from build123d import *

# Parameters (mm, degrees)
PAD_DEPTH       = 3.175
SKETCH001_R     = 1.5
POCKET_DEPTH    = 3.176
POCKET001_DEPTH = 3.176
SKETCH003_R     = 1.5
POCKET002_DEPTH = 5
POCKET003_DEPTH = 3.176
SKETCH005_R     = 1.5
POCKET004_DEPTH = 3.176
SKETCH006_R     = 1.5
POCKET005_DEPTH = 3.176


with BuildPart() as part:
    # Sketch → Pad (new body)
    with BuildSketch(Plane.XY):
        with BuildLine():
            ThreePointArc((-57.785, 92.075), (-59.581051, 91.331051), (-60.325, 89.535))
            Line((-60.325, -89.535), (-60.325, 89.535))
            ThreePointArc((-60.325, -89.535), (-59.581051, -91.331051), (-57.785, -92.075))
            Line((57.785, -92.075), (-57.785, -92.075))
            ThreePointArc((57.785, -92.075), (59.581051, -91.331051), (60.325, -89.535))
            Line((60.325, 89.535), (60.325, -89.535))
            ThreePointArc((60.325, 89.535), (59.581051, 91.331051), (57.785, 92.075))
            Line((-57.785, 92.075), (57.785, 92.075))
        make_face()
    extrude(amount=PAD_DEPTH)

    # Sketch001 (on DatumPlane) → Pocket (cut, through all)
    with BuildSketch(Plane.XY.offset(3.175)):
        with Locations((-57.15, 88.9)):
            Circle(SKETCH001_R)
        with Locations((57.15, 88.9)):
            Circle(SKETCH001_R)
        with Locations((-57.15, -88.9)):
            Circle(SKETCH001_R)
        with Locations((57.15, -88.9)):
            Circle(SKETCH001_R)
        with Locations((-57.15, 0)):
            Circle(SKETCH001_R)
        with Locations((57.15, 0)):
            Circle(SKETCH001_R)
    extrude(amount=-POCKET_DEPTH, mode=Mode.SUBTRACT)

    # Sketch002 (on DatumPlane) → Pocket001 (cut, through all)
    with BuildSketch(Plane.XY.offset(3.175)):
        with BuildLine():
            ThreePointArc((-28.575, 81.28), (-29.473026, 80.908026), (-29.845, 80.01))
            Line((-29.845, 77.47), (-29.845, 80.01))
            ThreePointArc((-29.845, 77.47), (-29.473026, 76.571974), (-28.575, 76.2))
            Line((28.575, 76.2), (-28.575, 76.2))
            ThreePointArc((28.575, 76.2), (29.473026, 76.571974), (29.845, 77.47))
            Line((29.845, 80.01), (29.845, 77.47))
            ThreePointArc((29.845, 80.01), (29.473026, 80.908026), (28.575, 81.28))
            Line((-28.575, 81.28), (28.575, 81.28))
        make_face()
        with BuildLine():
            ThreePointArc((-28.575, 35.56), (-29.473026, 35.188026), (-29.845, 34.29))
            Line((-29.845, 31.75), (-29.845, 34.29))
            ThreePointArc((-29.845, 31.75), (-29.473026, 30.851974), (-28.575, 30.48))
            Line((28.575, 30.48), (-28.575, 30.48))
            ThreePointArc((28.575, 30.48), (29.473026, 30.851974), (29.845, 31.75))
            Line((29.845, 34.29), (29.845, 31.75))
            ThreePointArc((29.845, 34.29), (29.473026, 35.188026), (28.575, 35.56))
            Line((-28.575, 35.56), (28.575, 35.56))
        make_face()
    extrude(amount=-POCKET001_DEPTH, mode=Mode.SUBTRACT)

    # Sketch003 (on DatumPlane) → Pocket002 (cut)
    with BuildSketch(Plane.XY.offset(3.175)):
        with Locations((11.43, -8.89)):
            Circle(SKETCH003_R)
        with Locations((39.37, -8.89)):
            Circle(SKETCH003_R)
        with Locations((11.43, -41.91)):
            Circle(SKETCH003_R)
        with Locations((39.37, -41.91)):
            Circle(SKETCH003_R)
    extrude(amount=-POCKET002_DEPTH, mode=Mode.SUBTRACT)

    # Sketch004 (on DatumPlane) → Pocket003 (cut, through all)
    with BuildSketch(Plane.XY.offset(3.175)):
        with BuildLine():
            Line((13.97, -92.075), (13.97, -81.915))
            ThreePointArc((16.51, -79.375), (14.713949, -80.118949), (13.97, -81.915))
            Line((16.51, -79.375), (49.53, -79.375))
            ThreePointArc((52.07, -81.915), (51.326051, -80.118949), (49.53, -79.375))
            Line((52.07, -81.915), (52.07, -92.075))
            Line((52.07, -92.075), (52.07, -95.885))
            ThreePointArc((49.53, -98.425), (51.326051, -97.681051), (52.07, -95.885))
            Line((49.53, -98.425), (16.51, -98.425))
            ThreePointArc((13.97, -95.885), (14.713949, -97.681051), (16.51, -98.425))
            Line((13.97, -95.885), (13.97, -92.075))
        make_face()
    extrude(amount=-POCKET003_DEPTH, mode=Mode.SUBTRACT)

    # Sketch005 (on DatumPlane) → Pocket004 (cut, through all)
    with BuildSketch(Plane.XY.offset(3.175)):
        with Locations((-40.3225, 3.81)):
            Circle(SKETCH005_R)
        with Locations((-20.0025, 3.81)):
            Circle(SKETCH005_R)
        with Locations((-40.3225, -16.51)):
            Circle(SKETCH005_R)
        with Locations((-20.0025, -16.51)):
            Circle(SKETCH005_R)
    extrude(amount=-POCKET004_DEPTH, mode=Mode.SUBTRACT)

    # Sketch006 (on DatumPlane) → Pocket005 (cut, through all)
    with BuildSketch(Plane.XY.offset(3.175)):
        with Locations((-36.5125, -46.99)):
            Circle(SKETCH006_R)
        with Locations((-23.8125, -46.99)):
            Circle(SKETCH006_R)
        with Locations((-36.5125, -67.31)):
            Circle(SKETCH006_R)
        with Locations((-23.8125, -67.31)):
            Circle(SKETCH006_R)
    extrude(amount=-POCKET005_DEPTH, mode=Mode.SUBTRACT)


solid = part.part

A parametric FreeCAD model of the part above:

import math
import FreeCAD as App
import Part
import Sketcher

V = App.Vector
Q = App.Units.Quantity

doc = App.newDocument("Part")
body = doc.addObject("PartDesign::Body", "Body")

# Sketch on XY plane
sketch1 = body.newObject("Sketcher::SketchObject", "Sketch")
sketch1.AttachmentSupport = (doc.getObject("XY_Plane"), [""])
sketch1.MapMode = "FlatFace"
sketch1.addGeometry([
    Part.ArcOfCircle(Part.Circle(V(-57.784999, 89.534999, 0), V(0, 0, 1), 2.540001), math.radians(90.000017), math.radians(179.999983)),  # 0
    Part.LineSegment(V(-60.325, 89.535, 0), V(-60.325, -89.535, 0)),  # 1
    Part.ArcOfCircle(Part.Circle(V(-57.784999, -89.534999, 0), V(0, 0, 1), 2.540001), math.radians(-179.999983), math.radians(-90.000017)),  # 2
    Part.LineSegment(V(-57.785, -92.075, 0), V(57.785, -92.075, 0)),  # 3
    Part.ArcOfCircle(Part.Circle(V(57.784999, -89.534999, 0), V(0, 0, 1), 2.540001), math.radians(-89.999983), math.radians(-0.000017)),  # 4
    Part.LineSegment(V(60.325, -89.535, 0), V(60.325, 89.535, 0)),  # 5
    Part.ArcOfCircle(Part.Circle(V(57.784999, 89.534999, 0), V(0, 0, 1), 2.540001), math.radians(0.000017), math.radians(89.999983)),  # 6
    Part.LineSegment(V(57.785, 92.075, 0), V(-57.785, 92.075, 0)),  # 7
], False)
sketch1.addConstraint([
    Sketcher.Constraint("Tangent", 0, 2, 1, 1),
    Sketcher.Constraint("Tangent", 1, 2, 2, 1),
    Sketcher.Constraint("Tangent", 2, 2, 3, 1),
    Sketcher.Constraint("Tangent", 3, 2, 4, 1),
    Sketcher.Constraint("Tangent", 4, 2, 5, 1),
    Sketcher.Constraint("Tangent", 5, 2, 6, 1),
    Sketcher.Constraint("Tangent", 6, 2, 7, 1),
    Sketcher.Constraint("Tangent", 7, 2, 0, 1),
    Sketcher.Constraint("Vertical", 1),
    Sketcher.Constraint("Horizontal", 3),
    Sketcher.Constraint("Vertical", 5),
    Sketcher.Constraint("Horizontal", 7),
    Sketcher.Constraint("Equal", 0, 2),
    Sketcher.Constraint("Equal", 2, 4),
    Sketcher.Constraint("Equal", 4, 6),
    Sketcher.Constraint("Symmetric", 0, 3, 4, 3, -1, 1),
    Sketcher.Constraint("Radius", 0, Q("0.1 in")),
    Sketcher.Constraint("DistanceX", 3, 1, 3, 2, Q("4.55 in")),
    Sketcher.Constraint("DistanceY", 1, 2, 1, 1, Q("7.05 in")),
])
pad1 = body.newObject("PartDesign::Pad", "Pad")
pad1.Profile = sketch1
pad1.Length = Q("0.125 in")

# Sketch on XY plane
sketch2 = body.newObject("Sketcher::SketchObject", "Sketch001")
sketch2.AttachmentSupport = (doc.getObject("XY_Plane"), [""])
sketch2.MapMode = "FlatFace"
sketch2.AttachmentOffset = App.Placement(V(0, 0, 0.125 * 25.4), App.Rotation())
sketch2.addGeometry([
    Part.Circle(V(-57.15, 88.9, 0), V(0, 0, 1), 1.5),  # 0
    Part.Circle(V(57.15, 88.9, 0), V(0, 0, 1), 1.5),  # 1
    Part.Circle(V(-57.15, -88.9, 0), V(0, 0, 1), 1.5),  # 2
    Part.Circle(V(57.15, -88.9, 0), V(0, 0, 1), 1.5),  # 3
    Part.Circle(V(-57.15, 0, 0), V(0, 0, 1), 1.5),  # 4
    Part.Circle(V(57.15, 0, 0), V(0, 0, 1), 1.5),  # 5
], False)
sketch2.addConstraint([
    Sketcher.Constraint("Equal", 0, 1),
    Sketcher.Constraint("Equal", 1, 2),
    Sketcher.Constraint("Equal", 2, 3),
    Sketcher.Constraint("Equal", 3, 4),
    Sketcher.Constraint("Equal", 4, 5),
    Sketcher.Constraint("Symmetric", 1, 3, 2, 3, -1, 1),
    Sketcher.Constraint("Symmetric", 0, 3, 3, 3, -1, 1),
    Sketcher.Constraint("Symmetric", 4, 3, 5, 3, -1, 1),
    Sketcher.Constraint("Symmetric", 0, 3, 1, 3, -2),
    Sketcher.Constraint("PointOnObject", 4, 3, -1),
    Sketcher.Constraint("Vertical", 2, 3, 4, 3),
    Sketcher.Constraint("DistanceY", 2, 3, 0, 3, Q("7 in")),
    Sketcher.Constraint("DistanceX", 0, 3, 1, 3, Q("4.5 in")),
    Sketcher.Constraint("Diameter", 0, 3.0),
])
pocket1 = body.newObject("PartDesign::Pocket", "Pocket")
pocket1.Profile = sketch2
pocket1.Type = "ThroughAll"

# Sketch on XY plane
sketch3 = body.newObject("Sketcher::SketchObject", "Sketch002")
sketch3.AttachmentSupport = (doc.getObject("XY_Plane"), [""])
sketch3.MapMode = "FlatFace"
sketch3.AttachmentOffset = App.Placement(V(0, 0, 0.125 * 25.4), App.Rotation())
sketch3.addGeometry([
    Part.ArcOfCircle(Part.Circle(V(-28.575001, 80.010001, 0), V(0, 0, 1), 1.269999), math.radians(89.99994), math.radians(180.00006)),  # 0
    Part.LineSegment(V(-29.845, 80.01, 0), V(-29.845, 77.47, 0)),  # 1
    Part.ArcOfCircle(Part.Circle(V(-28.575001, 77.469999, 0), V(0, 0, 1), 1.269999), math.radians(179.99994), math.radians(270.00006)),  # 2
    Part.LineSegment(V(-28.575, 76.2, 0), V(28.575, 76.2, 0)),  # 3
    Part.ArcOfCircle(Part.Circle(V(28.575001, 77.469999, 0), V(0, 0, 1), 1.269999), math.radians(-90.00006), math.radians(0.00006)),  # 4
    Part.LineSegment(V(29.845, 77.47, 0), V(29.845, 80.01, 0)),  # 5
    Part.ArcOfCircle(Part.Circle(V(28.575001, 80.010001, 0), V(0, 0, 1), 1.269999), math.radians(-0.00006), math.radians(90.00006)),  # 6
    Part.LineSegment(V(28.575, 81.28, 0), V(-28.575, 81.28, 0)),  # 7
    Part.ArcOfCircle(Part.Circle(V(-28.575001, 34.290001, 0), V(0, 0, 1), 1.269999), math.radians(89.99994), math.radians(180.00006)),  # 8
    Part.LineSegment(V(-29.845, 34.29, 0), V(-29.845, 31.75, 0)),  # 9
    Part.ArcOfCircle(Part.Circle(V(-28.575001, 31.749999, 0), V(0, 0, 1), 1.269999), math.radians(179.99994), math.radians(270.00006)),  # 10
    Part.LineSegment(V(-28.575, 30.48, 0), V(28.575, 30.48, 0)),  # 11
    Part.ArcOfCircle(Part.Circle(V(28.575001, 31.749999, 0), V(0, 0, 1), 1.269999), math.radians(-90.00006), math.radians(0.00006)),  # 12
    Part.LineSegment(V(29.845, 31.75, 0), V(29.845, 34.29, 0)),  # 13
    Part.ArcOfCircle(Part.Circle(V(28.575001, 34.290001, 0), V(0, 0, 1), 1.269999), math.radians(-0.00006), math.radians(90.00006)),  # 14
    Part.LineSegment(V(28.575, 35.56, 0), V(-28.575, 35.56, 0)),  # 15
], False)
sketch3.addConstraint([
    Sketcher.Constraint("Tangent", 0, 2, 1, 1),
    Sketcher.Constraint("Tangent", 1, 2, 2, 1),
    Sketcher.Constraint("Tangent", 2, 2, 3, 1),
    Sketcher.Constraint("Tangent", 3, 2, 4, 1),
    Sketcher.Constraint("Tangent", 4, 2, 5, 1),
    Sketcher.Constraint("Tangent", 5, 2, 6, 1),
    Sketcher.Constraint("Tangent", 6, 2, 7, 1),
    Sketcher.Constraint("Tangent", 7, 2, 0, 1),
    Sketcher.Constraint("Tangent", 8, 2, 9, 1),
    Sketcher.Constraint("Tangent", 9, 2, 10, 1),
    Sketcher.Constraint("Tangent", 10, 2, 11, 1),
    Sketcher.Constraint("Tangent", 11, 2, 12, 1),
    Sketcher.Constraint("Tangent", 12, 2, 13, 1),
    Sketcher.Constraint("Tangent", 13, 2, 14, 1),
    Sketcher.Constraint("Tangent", 14, 2, 15, 1),
    Sketcher.Constraint("Tangent", 15, 2, 8, 1),
    Sketcher.Constraint("Vertical", 1),
    Sketcher.Constraint("Horizontal", 3),
    Sketcher.Constraint("Vertical", 5),
    Sketcher.Constraint("Horizontal", 7),
    Sketcher.Constraint("Vertical", 9),
    Sketcher.Constraint("Horizontal", 11),
    Sketcher.Constraint("Vertical", 13),
    Sketcher.Constraint("Horizontal", 15),
    Sketcher.Constraint("Equal", 0, 2),
    Sketcher.Constraint("Equal", 2, 4),
    Sketcher.Constraint("Equal", 4, 6),
    Sketcher.Constraint("Equal", 6, 8),
    Sketcher.Constraint("Equal", 8, 10),
    Sketcher.Constraint("Equal", 10, 12),
    Sketcher.Constraint("Equal", 12, 14),
    Sketcher.Constraint("Vertical", 2, 3, 8, 3),
    Sketcher.Constraint("Vertical", 6, 3, 12, 3),
    Sketcher.Constraint("Equal", 5, 9),
    Sketcher.Constraint("Radius", 0, Q("0.0499999 in")),
    Sketcher.Constraint("DistanceY", 1, 2, 1, 1, Q("0.1 in")),
    Sketcher.Constraint("DistanceY", -1, 1, 2, 2, Q("3 in")),
    Sketcher.Constraint("DistanceX", 3, 1, 3, 2, Q("2.25 in")),
    Sketcher.Constraint("DistanceY", -1, 1, 10, 2, Q("1.2 in")),
    Sketcher.Constraint("DistanceX", 0, 3, -1, 1, Q("1.1250001 in")),
])
pocket2 = body.newObject("PartDesign::Pocket", "Pocket001")
pocket2.Profile = sketch3
pocket2.Type = "ThroughAll"

# Sketch on XY plane
sketch4 = body.newObject("Sketcher::SketchObject", "Sketch003")
sketch4.AttachmentSupport = (doc.getObject("XY_Plane"), [""])
sketch4.MapMode = "FlatFace"
sketch4.AttachmentOffset = App.Placement(V(0, 0, 0.125 * 25.4), App.Rotation())
sketch4.addGeometry([
    Part.Circle(V(11.43, -8.89, 0), V(0, 0, 1), 1.5),
    Part.Circle(V(39.37, -8.89, 0), V(0, 0, 1), 1.5),
    Part.Circle(V(11.43, -41.91, 0), V(0, 0, 1), 1.5),
    Part.Circle(V(39.37, -41.91, 0), V(0, 0, 1), 1.5),
], False)
sketch4.addConstraint([
    Sketcher.Constraint("Equal", 0, 1),
    Sketcher.Constraint("Equal", 1, 2),
    Sketcher.Constraint("Equal", 2, 3),
    Sketcher.Constraint("Horizontal", 0, 3, 1, 3),
    Sketcher.Constraint("Horizontal", 2, 3, 3, 3),
    Sketcher.Constraint("Vertical", 0, 3, 2, 3),
    Sketcher.Constraint("Vertical", 1, 3, 3, 3),
    Sketcher.Constraint("DistanceX", 0, 3, 1, 3, Q("1.1 in")),
    Sketcher.Constraint("DistanceY", 2, 3, 0, 3, Q("1.3 in")),
    Sketcher.Constraint("Diameter", 0, 3.0),
    Sketcher.Constraint("DistanceX", -1, 1, 0, 3, Q("0.45 in")),
    Sketcher.Constraint("DistanceY", 0, 3, -1, 1, Q("0.35 in")),
])
pocket3 = body.newObject("PartDesign::Pocket", "Pocket002")
pocket3.Profile = sketch4
pocket3.Length = 5

# Sketch on XY plane
sketch5 = body.newObject("Sketcher::SketchObject", "Sketch004")
sketch5.AttachmentSupport = (doc.getObject("XY_Plane"), [""])
sketch5.MapMode = "FlatFace"
sketch5.AttachmentOffset = App.Placement(V(0, 0, 0.125 * 25.4), App.Rotation())
sketch5.addGeometry([
    Part.ArcOfCircle(Part.Circle(V(16.510001, -81.915001, 0), V(0, 0, 1), 2.540001), math.radians(90.000017), math.radians(179.999983)),  # 0
    Part.LineSegment(V(13.97, -81.915, 0), V(13.97, -95.885, 0)),  # 1
    Part.ArcOfCircle(Part.Circle(V(16.510001, -95.884999, 0), V(0, 0, 1), 2.540001), math.radians(-179.999983), math.radians(-90.000017)),  # 2
    Part.LineSegment(V(16.51, -98.425, 0), V(49.53, -98.425, 0)),  # 3
    Part.ArcOfCircle(Part.Circle(V(49.529999, -95.884999, 0), V(0, 0, 1), 2.540001), math.radians(-89.999983), math.radians(-0.000017)),  # 4
    Part.LineSegment(V(52.07, -95.885, 0), V(52.07, -81.915, 0)),  # 5
    Part.ArcOfCircle(Part.Circle(V(49.529999, -81.915001, 0), V(0, 0, 1), 2.540001), math.radians(0.000017), math.radians(89.999983)),  # 6
    Part.LineSegment(V(49.53, -79.375, 0), V(16.51, -79.375, 0)),  # 7
], False)
sketch5.addConstraint([
    Sketcher.Constraint("Tangent", 0, 2, 1, 1),
    Sketcher.Constraint("Tangent", 1, 2, 2, 1),
    Sketcher.Constraint("Tangent", 2, 2, 3, 1),
    Sketcher.Constraint("Tangent", 3, 2, 4, 1),
    Sketcher.Constraint("Tangent", 4, 2, 5, 1),
    Sketcher.Constraint("Tangent", 5, 2, 6, 1),
    Sketcher.Constraint("Tangent", 6, 2, 7, 1),
    Sketcher.Constraint("Tangent", 7, 2, 0, 1),
    Sketcher.Constraint("Vertical", 1),
    Sketcher.Constraint("Horizontal", 3),
    Sketcher.Constraint("Vertical", 5),
    Sketcher.Constraint("Horizontal", 7),
    Sketcher.Constraint("Equal", 0, 2),
    Sketcher.Constraint("Equal", 2, 4),
    Sketcher.Constraint("Equal", 4, 6),
    Sketcher.Constraint("Radius", 0, Q("0.1 in")),
    Sketcher.Constraint("DistanceX", 3, 1, 3, 2, Q("1.3 in")),
    Sketcher.Constraint("DistanceY", 1, 2, 1, 1, Q("0.55 in")),
    Sketcher.Constraint("DistanceX", -1, 1, 0, 3, Q("0.65 in")),
    Sketcher.Constraint("DistanceY", 0, 3, -1, 1, Q("3.225 in")),
])
pocket4 = body.newObject("PartDesign::Pocket", "Pocket003")
pocket4.Profile = sketch5
pocket4.Type = "ThroughAll"

# Sketch on XY plane
sketch6 = body.newObject("Sketcher::SketchObject", "Sketch005")
sketch6.AttachmentSupport = (doc.getObject("XY_Plane"), [""])
sketch6.MapMode = "FlatFace"
sketch6.AttachmentOffset = App.Placement(V(0, 0, 0.125 * 25.4), App.Rotation())
sketch6.addGeometry([
    Part.Circle(V(-40.3225, 3.81, 0), V(0, 0, 1), 1.5),
    Part.Circle(V(-20.0025, 3.81, 0), V(0, 0, 1), 1.5),
    Part.Circle(V(-40.3225, -16.51, 0), V(0, 0, 1), 1.5),
    Part.Circle(V(-20.0025, -16.51, 0), V(0, 0, 1), 1.5),
], False)
sketch6.addConstraint([
    Sketcher.Constraint("Equal", 0, 1),
    Sketcher.Constraint("Equal", 1, 2),
    Sketcher.Constraint("Equal", 2, 3),
    Sketcher.Constraint("Horizontal", 0, 3, 1, 3),
    Sketcher.Constraint("Horizontal", 2, 3, 3, 3),
    Sketcher.Constraint("Vertical", 0, 3, 2, 3),
    Sketcher.Constraint("Vertical", 1, 3, 3, 3),
    Sketcher.Constraint("DistanceX", 0, 3, 1, 3, Q("0.8 in")),
    Sketcher.Constraint("DistanceY", 2, 3, 0, 3, Q("0.8 in")),
    Sketcher.Constraint("Diameter", 0, 3.0),
    Sketcher.Constraint("DistanceY", -1, 1, 0, 3, Q("0.15 in")),
    Sketcher.Constraint("DistanceX", 0, 3, -1, 1, Q("1.5875 in")),
])
pocket5 = body.newObject("PartDesign::Pocket", "Pocket004")
pocket5.Profile = sketch6
pocket5.Type = "ThroughAll"

# Sketch on XY plane
sketch7 = body.newObject("Sketcher::SketchObject", "Sketch006")
sketch7.AttachmentSupport = (doc.getObject("XY_Plane"), [""])
sketch7.MapMode = "FlatFace"
sketch7.AttachmentOffset = App.Placement(V(0, 0, 0.125 * 25.4), App.Rotation())
sketch7.addGeometry([
    Part.Circle(V(-36.5125, -46.99, 0), V(0, 0, 1), 1.5),
    Part.Circle(V(-23.8125, -46.99, 0), V(0, 0, 1), 1.5),
    Part.Circle(V(-36.5125, -67.31, 0), V(0, 0, 1), 1.5),
    Part.Circle(V(-23.8125, -67.31, 0), V(0, 0, 1), 1.5),
], False)
sketch7.addConstraint([
    Sketcher.Constraint("Equal", 0, 1),
    Sketcher.Constraint("Equal", 1, 2),
    Sketcher.Constraint("Equal", 2, 3),
    Sketcher.Constraint("Horizontal", 0, 3, 1, 3),
    Sketcher.Constraint("Horizontal", 2, 3, 3, 3),
    Sketcher.Constraint("Vertical", 0, 3, 2, 3),
    Sketcher.Constraint("Vertical", 1, 3, 3, 3),
    Sketcher.Constraint("DistanceX", 0, 3, 1, 3, Q("0.5 in")),
    Sketcher.Constraint("DistanceY", 2, 3, 0, 3, Q("0.8 in")),
    Sketcher.Constraint("Diameter", 0, 3.0),
    Sketcher.Constraint("DistanceY", 0, 3, -1, 1, Q("1.85 in")),
    Sketcher.Constraint("DistanceX", 0, 3, -1, 1, Q("1.4375 in")),
])
pocket6 = body.newObject("PartDesign::Pocket", "Pocket005")
pocket6.Profile = sketch7
pocket6.Type = "ThroughAll"

doc.recompute()
